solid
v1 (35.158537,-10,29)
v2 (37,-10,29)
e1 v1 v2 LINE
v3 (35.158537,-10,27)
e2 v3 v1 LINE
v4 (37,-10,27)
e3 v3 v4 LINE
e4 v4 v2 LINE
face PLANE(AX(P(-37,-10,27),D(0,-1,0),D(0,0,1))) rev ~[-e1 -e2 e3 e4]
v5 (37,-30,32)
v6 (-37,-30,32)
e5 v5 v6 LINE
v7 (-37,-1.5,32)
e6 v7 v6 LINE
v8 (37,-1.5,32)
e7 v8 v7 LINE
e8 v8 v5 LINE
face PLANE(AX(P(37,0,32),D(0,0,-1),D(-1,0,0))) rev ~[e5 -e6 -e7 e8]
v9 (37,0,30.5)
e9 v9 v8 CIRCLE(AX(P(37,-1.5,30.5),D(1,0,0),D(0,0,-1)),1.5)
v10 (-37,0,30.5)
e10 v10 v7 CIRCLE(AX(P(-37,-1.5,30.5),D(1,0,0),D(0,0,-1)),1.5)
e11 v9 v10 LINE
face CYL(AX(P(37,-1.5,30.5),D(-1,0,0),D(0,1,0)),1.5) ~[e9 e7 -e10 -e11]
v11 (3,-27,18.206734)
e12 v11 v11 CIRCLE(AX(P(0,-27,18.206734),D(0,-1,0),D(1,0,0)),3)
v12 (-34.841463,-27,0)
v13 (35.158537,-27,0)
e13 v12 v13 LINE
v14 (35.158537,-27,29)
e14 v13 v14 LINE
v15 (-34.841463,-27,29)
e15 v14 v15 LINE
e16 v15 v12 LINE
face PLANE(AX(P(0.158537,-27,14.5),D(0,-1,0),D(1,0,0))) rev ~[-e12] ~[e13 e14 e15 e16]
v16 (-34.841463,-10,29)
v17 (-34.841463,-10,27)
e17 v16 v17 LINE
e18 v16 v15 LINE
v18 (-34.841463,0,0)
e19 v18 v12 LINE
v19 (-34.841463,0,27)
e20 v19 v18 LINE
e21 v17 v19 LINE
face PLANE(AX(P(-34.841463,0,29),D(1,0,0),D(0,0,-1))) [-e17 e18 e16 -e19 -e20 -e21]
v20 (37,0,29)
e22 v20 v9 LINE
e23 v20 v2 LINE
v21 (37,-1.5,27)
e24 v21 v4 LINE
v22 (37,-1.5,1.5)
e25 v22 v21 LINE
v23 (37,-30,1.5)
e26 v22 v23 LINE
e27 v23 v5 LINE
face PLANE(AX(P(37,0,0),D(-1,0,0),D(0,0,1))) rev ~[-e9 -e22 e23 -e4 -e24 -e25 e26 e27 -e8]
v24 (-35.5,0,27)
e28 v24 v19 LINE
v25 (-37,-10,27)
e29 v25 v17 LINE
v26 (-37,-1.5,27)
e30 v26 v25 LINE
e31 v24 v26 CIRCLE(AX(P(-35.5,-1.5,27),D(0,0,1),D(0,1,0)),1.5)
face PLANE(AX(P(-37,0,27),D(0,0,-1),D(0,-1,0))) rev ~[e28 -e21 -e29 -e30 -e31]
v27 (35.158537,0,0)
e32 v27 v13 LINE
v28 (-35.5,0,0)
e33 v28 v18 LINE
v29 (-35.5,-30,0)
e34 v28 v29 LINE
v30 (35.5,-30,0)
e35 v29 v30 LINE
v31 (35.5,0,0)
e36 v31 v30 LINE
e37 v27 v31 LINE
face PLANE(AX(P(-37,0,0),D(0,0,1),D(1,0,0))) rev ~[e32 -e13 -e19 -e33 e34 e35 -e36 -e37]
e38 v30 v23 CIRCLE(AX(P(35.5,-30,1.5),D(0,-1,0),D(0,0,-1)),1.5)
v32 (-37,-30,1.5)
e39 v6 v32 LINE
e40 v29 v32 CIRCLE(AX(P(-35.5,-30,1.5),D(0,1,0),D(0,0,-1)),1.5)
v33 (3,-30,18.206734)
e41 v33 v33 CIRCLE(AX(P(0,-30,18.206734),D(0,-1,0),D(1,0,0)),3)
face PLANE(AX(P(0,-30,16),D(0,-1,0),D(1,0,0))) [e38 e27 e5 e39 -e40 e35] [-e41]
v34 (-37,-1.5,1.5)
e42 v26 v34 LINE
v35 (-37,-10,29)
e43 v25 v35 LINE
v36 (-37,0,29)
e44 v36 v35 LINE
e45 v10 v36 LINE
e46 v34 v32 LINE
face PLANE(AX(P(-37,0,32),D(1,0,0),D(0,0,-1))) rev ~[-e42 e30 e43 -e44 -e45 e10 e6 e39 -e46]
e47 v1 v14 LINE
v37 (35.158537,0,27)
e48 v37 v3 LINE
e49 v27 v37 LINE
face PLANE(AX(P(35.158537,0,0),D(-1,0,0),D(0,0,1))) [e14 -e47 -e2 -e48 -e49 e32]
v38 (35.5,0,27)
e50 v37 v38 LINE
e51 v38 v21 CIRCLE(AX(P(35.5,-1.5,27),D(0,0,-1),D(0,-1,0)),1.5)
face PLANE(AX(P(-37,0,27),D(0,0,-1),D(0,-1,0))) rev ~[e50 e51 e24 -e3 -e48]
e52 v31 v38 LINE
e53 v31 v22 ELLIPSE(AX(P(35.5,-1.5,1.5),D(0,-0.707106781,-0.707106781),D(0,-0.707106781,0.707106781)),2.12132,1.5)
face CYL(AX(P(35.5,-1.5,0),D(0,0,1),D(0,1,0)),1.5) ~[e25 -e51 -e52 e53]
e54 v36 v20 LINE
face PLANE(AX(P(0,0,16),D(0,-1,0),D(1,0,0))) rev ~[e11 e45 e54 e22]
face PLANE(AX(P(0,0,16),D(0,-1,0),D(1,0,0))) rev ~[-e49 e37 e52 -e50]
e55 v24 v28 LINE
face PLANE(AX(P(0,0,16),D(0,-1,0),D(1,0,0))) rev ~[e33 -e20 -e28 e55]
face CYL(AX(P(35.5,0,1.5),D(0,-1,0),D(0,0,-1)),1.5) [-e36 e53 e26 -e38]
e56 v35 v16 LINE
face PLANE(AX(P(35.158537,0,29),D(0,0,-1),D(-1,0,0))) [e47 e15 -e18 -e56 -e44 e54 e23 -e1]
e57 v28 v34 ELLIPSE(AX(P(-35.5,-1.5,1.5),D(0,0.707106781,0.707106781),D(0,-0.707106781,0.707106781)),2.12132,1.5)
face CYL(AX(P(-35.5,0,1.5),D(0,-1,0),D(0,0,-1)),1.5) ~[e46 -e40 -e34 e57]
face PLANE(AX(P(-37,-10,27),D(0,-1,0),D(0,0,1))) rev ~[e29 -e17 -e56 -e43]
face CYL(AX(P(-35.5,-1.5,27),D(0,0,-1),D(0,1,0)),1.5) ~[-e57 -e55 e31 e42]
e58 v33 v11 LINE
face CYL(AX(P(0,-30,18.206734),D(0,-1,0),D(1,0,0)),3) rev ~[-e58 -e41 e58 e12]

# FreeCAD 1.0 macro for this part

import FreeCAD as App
import Part
import Sketcher

V = App.Vector
Q = App.Units.Quantity


def edges_at(feature, points):
    """Names of the edges that pass closest to the given points."""
    edges = feature.Shape.Edges
    near = lambda p: min(range(len(edges)), key=lambda i: edges[i].distToShape(Part.Vertex(*p))[0])
    return sorted({f"Edge{near(p) + 1}" for p in points})

doc = App.newDocument("Part")
body = doc.addObject("PartDesign::Body", "Body")

sketch1 = body.newObject("Sketcher::SketchObject", "Sketch")
sketch1.AttachmentSupport = (doc.getObject("XZ_Plane"), [""])
sketch1.MapMode = "FlatFace"
sketch1.addGeometry(Part.LineSegment(V(-37, 0, 0), V(37, 0, 0)), False)
sketch1.addGeometry(Part.LineSegment(V(37, 0, 0), V(37, 32, 0)), False)
sketch1.addGeometry(Part.LineSegment(V(37, 32, 0), V(-37, 32, 0)), False)
sketch1.addGeometry(Part.LineSegment(V(-37, 32, 0), V(-37, 0, 0)), False)
sketch1.addConstraint(Sketcher.Constraint("Coincident", 0, 2, 1, 1))
sketch1.addConstraint(Sketcher.Constraint("Coincident", 1, 2, 2, 1))
sketch1.addConstraint(Sketcher.Constraint("Coincident", 2, 2, 3, 1))
sketch1.addConstraint(Sketcher.Constraint("Coincident", 3, 2, 0, 1))
sketch1.addConstraint(Sketcher.Constraint("Horizontal", 0))
sketch1.addConstraint(Sketcher.Constraint("Vertical", 1))
sketch1.addConstraint(Sketcher.Constraint("Horizontal", 2))
sketch1.addConstraint(Sketcher.Constraint("Vertical", 3))
sketch1.addConstraint(Sketcher.Constraint("Symmetric", 0, 2, 3, 2, -1, 1))
sketch1.addConstraint(Sketcher.Constraint("DistanceX", 0, 1, 0, 2, Q("74 mm")))
sketch1.addConstraint(Sketcher.Constraint("DistanceY", 1, 1, 1, 2, Q("32 mm")))
pad1 = body.newObject("PartDesign::Pad", "Pad")
pad1.Profile = sketch1
pad1.Length = 30

sketch2 = body.newObject("Sketcher::SketchObject", "Sketch001")
sketch2.AttachmentSupport = (doc.getObject("XZ_Plane"), [""])
sketch2.MapMode = "FlatFace"
sketch2.addGeometry(Part.LineSegment(V(-35, 29, 0), V(-35, 0, 0)), False)
sketch2.addGeometry(Part.LineSegment(V(-35, 0, 0), V(35, 0, 0)), False)
sketch2.addGeometry(Part.LineSegment(V(35, 0, 0), V(35, 29, 0)), False)
sketch2.addGeometry(Part.LineSegment(V(35, 29, 0), V(-35, 29, 0)), False)
sketch2.addConstraint(Sketcher.Constraint("Coincident", 0, 2, 1, 1))
sketch2.addConstraint(Sketcher.Constraint("Coincident", 1, 2, 2, 1))
sketch2.addConstraint(Sketcher.Constraint("Coincident", 2, 2, 3, 1))
sketch2.addConstraint(Sketcher.Constraint("Coincident", 3, 2, 0, 1))
sketch2.addConstraint(Sketcher.Constraint("Vertical", 0))
sketch2.addConstraint(Sketcher.Constraint("Horizontal", 1))
sketch2.addConstraint(Sketcher.Constraint("Vertical", 2))
sketch2.addConstraint(Sketcher.Constraint("Horizontal", 3))
sketch2.addConstraint(Sketcher.Constraint("PointOnObject", 0, 2, -1))
sketch2.addConstraint(Sketcher.Constraint("DistanceX", 1, 1, 1, 2, Q("70 mm")))
sketch2.addConstraint(Sketcher.Constraint("DistanceY", 0, 2, 0, 1, Q("29 mm")))
sketch2.addConstraint(Sketcher.Constraint("DistanceX", 0, 2, -1, 1, Q("34.841463 mm")))
pocket1 = body.newObject("PartDesign::Pocket", "Pocket")
pocket1.Profile = sketch2
pocket1.Length = 27
pocket1.Reversed = True

sketch3 = body.newObject("Sketcher::SketchObject", "Sketch002")
sketch3.AttachmentSupport = (doc.getObject("YZ_Plane"), [""])
sketch3.MapMode = "FlatFace"
sketch3.AttachmentOffset = App.Placement(V(0, 0, -37), App.Rotation())
sketch3.addGeometry(Part.LineSegment(V(0, 29, 0), V(0, 27, 0)), False)
sketch3.addGeometry(Part.LineSegment(V(0, 27, 0), V(-10, 27, 0)), False)
sketch3.addGeometry(Part.LineSegment(V(-10, 27, 0), V(-10, 29, 0)), False)
sketch3.addGeometry(Part.LineSegment(V(-10, 29, 0), V(0, 29, 0)), False)
sketch3.addConstraint(Sketcher.Constraint("Coincident", 0, 2, 1, 1))
sketch3.addConstraint(Sketcher.Constraint("Coincident", 1, 2, 2, 1))
sketch3.addConstraint(Sketcher.Constraint("Coincident", 2, 2, 3, 1))
sketch3.addConstraint(Sketcher.Constraint("Coincident", 3, 2, 0, 1))
sketch3.addConstraint(Sketcher.Constraint("Vertical", 0))
sketch3.addConstraint(Sketcher.Constraint("Horizontal", 1))
sketch3.addConstraint(Sketcher.Constraint("Vertical", 2))
sketch3.addConstraint(Sketcher.Constraint("Horizontal", 3))
sketch3.addConstraint(Sketcher.Constraint("PointOnObject", 0, 2, -2))
sketch3.addConstraint(Sketcher.Constraint("DistanceX", 1, 2, 1, 1, Q("10 mm")))
sketch3.addConstraint(Sketcher.Constraint("DistanceY", 0, 2, 0, 1, Q("2 mm")))
sketch3.addConstraint(Sketcher.Constraint("DistanceY", -1, 1, 0, 2, Q("27 mm")))
pocket2 = body.newObject("PartDesign::Pocket", "Pocket001")
pocket2.Profile = sketch3
pocket2.Length = 74.5
pocket2.Reversed = True

sketch4 = body.newObject("Sketcher::SketchObject", "Sketch003")
sketch4.AttachmentSupport = (doc.getObject("XZ_Plane"), [""])
sketch4.MapMode = "FlatFace"
sketch4.AttachmentOffset = App.Placement(V(0, 0, 30), App.Rotation())
sketch4.addGeometry(Part.Circle(V(0, 18.2, 0), V(0, 0, 1), 3), False)
sketch4.addConstraint(Sketcher.Constraint("PointOnObject", 0, 3, -2))
sketch4.addConstraint(Sketcher.Constraint("Diameter", 0, Q("6 mm")))
sketch4.addConstraint(Sketcher.Constraint("DistanceY", -1, 1, 0, 3, Q("18.206734 mm")))
pocket3 = body.newObject("PartDesign::Pocket", "Pocket002")
pocket3.Profile = sketch4
pocket3.Length = 25
doc.recompute()

fillet = body.newObject("PartDesign::Fillet", "Fillet")
fillet.Base = (pocket3, edges_at(pocket3, [
    (37, -15, 0),
    (0, 0, 32),
    (-37, -15, 0),
    (-37, 0, 13.5),
    (37, 0, 13.5),
]))
fillet.Radius = 1.5

doc.recompute()
